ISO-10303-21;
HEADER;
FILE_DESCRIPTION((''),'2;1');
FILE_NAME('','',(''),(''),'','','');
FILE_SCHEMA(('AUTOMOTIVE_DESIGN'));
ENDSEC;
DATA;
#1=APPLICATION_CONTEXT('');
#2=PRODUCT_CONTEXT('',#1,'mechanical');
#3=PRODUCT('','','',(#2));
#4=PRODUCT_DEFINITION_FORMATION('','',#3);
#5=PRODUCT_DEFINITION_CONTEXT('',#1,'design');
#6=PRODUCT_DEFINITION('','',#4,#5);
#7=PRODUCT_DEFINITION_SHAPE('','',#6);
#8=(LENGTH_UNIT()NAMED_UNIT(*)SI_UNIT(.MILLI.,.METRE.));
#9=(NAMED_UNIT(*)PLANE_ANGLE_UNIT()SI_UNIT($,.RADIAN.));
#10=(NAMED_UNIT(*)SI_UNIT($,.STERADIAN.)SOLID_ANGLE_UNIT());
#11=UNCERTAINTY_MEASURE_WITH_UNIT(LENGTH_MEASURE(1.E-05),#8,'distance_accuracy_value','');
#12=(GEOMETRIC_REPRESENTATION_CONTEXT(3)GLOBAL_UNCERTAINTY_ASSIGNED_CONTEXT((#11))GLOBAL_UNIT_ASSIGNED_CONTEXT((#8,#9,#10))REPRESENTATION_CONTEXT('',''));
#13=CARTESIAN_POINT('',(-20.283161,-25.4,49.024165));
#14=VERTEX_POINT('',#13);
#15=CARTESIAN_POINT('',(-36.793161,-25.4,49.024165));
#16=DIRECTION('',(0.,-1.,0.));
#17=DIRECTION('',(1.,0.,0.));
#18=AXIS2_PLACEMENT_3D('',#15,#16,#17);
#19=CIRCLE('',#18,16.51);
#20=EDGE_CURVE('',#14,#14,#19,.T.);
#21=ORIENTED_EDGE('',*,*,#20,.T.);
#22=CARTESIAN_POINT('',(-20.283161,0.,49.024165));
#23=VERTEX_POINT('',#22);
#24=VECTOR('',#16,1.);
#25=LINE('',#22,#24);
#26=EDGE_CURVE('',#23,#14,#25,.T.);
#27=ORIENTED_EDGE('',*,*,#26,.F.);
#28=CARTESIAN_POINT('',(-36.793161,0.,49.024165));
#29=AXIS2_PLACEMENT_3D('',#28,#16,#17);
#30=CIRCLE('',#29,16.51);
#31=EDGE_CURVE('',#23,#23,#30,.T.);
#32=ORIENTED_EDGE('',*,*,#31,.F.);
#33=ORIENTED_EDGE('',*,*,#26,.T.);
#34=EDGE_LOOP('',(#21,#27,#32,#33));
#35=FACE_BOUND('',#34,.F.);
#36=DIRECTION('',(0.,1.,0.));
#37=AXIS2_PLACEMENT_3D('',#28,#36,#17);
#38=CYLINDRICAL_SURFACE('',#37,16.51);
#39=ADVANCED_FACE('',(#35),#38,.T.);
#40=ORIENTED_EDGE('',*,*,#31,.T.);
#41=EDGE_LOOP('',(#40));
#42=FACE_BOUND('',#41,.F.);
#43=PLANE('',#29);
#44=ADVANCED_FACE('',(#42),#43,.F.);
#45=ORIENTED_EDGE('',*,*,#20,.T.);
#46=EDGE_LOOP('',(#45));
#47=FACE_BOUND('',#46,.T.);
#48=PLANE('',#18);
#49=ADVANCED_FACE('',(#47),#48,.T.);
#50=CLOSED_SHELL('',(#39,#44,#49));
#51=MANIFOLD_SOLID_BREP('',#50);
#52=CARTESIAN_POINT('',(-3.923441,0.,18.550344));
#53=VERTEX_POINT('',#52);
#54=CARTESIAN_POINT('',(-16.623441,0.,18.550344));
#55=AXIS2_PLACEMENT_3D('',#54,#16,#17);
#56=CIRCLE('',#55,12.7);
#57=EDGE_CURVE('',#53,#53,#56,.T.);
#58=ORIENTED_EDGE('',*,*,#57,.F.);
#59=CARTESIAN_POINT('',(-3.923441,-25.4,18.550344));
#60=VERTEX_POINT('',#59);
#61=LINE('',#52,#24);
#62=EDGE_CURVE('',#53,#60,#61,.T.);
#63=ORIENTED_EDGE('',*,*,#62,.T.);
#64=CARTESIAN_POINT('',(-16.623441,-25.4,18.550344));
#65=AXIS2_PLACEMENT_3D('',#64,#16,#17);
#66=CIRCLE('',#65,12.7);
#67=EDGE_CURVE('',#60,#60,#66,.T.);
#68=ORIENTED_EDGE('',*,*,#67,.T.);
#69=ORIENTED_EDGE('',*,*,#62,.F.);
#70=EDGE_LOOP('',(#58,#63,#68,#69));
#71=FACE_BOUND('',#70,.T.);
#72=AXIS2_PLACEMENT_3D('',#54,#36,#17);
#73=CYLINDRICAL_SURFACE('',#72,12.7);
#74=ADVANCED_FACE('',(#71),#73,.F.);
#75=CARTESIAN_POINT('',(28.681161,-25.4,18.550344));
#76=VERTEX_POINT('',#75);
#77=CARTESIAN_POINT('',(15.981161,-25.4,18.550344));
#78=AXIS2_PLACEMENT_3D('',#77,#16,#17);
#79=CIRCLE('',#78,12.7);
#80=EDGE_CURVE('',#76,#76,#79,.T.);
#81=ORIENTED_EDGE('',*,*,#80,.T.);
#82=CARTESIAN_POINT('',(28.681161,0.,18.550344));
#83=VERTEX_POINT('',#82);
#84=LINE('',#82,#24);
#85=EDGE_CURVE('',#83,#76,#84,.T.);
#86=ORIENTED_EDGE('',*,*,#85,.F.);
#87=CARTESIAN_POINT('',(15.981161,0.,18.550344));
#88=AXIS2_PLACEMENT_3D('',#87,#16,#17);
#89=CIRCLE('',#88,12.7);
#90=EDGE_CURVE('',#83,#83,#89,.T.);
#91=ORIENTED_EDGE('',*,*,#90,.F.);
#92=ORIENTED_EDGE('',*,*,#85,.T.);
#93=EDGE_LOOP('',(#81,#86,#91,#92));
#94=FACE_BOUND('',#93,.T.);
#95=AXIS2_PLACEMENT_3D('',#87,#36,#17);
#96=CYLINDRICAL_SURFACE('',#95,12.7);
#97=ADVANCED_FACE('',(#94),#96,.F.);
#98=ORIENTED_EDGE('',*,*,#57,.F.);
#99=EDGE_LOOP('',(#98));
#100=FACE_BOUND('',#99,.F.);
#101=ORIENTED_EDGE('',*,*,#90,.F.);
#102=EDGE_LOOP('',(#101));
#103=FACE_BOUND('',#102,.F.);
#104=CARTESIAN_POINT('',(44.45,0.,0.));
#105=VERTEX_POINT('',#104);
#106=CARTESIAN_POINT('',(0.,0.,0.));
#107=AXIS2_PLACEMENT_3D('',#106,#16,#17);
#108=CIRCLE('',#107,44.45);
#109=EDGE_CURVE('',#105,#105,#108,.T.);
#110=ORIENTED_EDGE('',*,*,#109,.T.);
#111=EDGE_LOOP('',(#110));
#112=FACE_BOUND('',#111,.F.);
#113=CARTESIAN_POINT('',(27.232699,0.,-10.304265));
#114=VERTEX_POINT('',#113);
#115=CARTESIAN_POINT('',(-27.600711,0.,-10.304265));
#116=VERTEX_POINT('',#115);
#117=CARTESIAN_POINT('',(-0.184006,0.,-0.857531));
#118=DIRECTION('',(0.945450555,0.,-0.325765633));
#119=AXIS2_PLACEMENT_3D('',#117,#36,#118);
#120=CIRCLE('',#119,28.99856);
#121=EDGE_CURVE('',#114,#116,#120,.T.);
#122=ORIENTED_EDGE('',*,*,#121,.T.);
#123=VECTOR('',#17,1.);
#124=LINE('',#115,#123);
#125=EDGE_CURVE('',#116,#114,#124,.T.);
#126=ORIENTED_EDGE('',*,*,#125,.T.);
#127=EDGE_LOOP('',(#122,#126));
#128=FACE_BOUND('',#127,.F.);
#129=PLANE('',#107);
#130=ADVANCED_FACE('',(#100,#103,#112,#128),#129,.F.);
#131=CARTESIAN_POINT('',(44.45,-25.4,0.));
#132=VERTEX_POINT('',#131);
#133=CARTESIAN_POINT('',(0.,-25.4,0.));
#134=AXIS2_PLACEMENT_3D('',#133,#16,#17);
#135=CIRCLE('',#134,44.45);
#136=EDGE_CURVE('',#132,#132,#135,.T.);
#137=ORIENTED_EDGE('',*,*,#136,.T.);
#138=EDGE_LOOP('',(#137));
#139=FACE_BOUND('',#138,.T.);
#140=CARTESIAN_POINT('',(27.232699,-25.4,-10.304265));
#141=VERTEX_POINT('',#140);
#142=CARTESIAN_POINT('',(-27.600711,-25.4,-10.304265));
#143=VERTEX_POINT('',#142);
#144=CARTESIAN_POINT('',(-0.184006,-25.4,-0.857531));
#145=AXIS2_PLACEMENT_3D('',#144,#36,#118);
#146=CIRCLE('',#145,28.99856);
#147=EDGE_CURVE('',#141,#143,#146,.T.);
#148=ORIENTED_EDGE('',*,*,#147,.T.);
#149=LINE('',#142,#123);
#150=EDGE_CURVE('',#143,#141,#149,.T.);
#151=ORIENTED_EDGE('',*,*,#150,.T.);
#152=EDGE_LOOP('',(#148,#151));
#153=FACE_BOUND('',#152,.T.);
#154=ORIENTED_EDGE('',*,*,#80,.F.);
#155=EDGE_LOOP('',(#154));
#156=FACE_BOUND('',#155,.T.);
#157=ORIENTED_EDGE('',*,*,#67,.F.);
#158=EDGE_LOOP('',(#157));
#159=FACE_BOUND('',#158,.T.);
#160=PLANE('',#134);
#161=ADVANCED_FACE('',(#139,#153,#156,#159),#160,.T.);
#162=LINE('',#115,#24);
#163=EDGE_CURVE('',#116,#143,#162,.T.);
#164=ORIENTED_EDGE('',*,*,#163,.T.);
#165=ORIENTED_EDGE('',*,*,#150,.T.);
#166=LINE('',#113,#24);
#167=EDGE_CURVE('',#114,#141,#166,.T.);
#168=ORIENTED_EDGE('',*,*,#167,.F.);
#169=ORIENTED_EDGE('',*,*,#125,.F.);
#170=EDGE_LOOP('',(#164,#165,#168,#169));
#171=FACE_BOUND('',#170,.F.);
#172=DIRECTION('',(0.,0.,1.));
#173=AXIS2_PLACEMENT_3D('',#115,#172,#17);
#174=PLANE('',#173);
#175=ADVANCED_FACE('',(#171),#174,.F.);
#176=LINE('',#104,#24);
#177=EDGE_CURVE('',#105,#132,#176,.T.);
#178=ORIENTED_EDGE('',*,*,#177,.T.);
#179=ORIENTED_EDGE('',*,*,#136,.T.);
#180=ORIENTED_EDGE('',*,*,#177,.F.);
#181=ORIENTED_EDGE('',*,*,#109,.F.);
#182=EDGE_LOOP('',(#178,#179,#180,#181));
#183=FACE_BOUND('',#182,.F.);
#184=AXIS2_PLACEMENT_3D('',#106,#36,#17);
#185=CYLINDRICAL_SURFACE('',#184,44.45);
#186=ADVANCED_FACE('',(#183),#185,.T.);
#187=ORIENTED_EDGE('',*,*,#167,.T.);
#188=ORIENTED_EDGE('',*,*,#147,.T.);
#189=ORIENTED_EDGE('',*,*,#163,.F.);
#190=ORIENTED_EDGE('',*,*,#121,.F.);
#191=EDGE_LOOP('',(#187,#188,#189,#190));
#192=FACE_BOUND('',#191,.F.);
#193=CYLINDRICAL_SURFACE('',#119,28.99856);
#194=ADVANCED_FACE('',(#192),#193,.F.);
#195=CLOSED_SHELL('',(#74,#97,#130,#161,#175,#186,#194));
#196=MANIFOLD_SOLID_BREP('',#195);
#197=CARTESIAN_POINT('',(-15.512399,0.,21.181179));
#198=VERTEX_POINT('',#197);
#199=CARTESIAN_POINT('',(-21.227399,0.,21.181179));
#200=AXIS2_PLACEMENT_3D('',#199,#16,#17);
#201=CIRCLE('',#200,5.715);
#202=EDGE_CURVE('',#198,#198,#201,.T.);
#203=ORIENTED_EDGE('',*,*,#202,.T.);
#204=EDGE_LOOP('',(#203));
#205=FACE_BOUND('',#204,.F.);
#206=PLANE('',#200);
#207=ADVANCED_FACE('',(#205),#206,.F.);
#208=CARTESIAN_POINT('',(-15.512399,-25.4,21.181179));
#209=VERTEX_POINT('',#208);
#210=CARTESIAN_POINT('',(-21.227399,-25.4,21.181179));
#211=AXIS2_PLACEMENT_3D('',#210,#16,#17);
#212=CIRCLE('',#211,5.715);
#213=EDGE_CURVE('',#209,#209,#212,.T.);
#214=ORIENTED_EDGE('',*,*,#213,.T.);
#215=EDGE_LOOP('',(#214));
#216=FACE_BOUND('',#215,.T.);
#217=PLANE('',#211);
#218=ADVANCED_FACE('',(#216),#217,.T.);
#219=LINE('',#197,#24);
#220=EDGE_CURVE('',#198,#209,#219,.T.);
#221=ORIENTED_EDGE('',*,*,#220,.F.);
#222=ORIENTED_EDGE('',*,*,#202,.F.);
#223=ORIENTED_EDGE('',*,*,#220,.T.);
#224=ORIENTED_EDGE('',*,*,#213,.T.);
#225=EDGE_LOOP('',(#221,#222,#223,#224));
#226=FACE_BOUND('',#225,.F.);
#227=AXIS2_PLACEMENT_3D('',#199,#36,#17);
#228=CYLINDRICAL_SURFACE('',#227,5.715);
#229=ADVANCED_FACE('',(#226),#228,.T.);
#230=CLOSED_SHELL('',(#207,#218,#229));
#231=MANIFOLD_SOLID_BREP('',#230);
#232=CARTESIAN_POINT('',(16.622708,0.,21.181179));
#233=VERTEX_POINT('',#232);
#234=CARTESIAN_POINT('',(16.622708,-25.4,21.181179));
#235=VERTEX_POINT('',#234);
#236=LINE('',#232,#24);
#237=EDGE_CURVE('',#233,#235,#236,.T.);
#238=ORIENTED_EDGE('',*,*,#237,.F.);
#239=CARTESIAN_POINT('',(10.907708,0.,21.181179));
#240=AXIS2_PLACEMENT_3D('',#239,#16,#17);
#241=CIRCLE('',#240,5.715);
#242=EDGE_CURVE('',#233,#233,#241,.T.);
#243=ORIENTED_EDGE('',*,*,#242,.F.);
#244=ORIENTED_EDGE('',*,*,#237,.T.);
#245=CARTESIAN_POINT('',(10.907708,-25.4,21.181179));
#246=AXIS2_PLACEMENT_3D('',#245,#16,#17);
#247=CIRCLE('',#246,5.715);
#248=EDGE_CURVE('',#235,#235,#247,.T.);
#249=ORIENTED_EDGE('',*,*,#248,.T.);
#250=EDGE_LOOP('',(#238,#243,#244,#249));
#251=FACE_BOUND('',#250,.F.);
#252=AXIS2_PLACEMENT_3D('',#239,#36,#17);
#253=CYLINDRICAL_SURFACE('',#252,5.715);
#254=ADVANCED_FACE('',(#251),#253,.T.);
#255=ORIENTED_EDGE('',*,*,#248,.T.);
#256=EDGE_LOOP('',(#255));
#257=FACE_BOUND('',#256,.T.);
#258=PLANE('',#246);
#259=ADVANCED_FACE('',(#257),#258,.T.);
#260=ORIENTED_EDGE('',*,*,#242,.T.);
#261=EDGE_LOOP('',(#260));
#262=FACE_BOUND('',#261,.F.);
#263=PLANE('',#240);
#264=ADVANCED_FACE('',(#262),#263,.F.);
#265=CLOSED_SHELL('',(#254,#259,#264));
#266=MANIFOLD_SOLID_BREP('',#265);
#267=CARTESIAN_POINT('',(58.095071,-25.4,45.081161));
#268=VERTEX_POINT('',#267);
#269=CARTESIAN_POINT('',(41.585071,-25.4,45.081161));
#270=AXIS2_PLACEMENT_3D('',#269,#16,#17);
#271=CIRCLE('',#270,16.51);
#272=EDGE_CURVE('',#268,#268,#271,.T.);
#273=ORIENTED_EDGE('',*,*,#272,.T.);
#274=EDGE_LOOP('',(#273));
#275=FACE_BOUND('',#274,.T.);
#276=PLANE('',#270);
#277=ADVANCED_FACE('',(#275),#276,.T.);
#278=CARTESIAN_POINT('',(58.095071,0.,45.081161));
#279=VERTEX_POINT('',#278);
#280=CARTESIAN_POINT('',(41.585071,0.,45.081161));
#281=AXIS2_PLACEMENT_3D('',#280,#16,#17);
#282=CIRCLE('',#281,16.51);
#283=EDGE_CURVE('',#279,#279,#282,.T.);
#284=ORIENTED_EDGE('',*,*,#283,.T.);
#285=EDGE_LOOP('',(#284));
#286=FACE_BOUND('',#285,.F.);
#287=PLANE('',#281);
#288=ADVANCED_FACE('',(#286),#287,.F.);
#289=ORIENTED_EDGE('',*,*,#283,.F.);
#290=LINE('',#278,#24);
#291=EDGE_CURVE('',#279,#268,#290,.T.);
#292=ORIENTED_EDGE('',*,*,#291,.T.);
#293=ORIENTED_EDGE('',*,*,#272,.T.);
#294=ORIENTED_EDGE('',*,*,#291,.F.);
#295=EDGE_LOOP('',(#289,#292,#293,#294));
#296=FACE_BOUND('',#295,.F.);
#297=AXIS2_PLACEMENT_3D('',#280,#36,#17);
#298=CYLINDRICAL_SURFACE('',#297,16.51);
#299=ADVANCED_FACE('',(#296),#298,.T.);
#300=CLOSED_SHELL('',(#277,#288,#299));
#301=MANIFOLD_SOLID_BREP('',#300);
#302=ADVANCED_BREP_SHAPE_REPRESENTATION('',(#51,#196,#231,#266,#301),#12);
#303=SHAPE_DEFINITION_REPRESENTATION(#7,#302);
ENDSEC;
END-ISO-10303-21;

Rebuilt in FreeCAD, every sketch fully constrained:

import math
import FreeCAD as App
import Part
import Sketcher

V = App.Vector
Q = App.Units.Quantity

doc = App.newDocument("Part")
body = doc.addObject("PartDesign::Body", "Body")
body.AllowCompound = True

# Sketch on XZ plane
sketch1 = doc.addObject("Sketcher::SketchObject", "Sketch")
body.addObject(sketch1)
sketch1.AttachmentSupport = (doc.XZ_Plane, [""])
sketch1.MapMode = "FlatFace"
sketch1.addGeometry([
    Part.Circle(V(42, 45, 0), V(0, 0, 1), 17),  # 0
    Part.Circle(V(-37, 49, 0), V(0, 0, 1), 17),  # 1
    Part.Circle(V(0, 0, 0), V(0, 0, 1), 44),  # 2
    Part.LineSegment(V(-28, -10, 0), V(27, -10, 0)),  # 3
    Part.ArcOfCircle(Part.Circle(V(0, -1, 0), V(0, 0, 1), 29), math.radians(-161), math.radians(-19)),  # 4
    Part.Circle(V(-17, 19, 0), V(0, 0, 1), 13),  # 5
    Part.Circle(V(16, 19, 0), V(0, 0, 1), 13),  # 6
    Part.Circle(V(-21, 21, 0), V(0, 0, 1), 6),  # 7
    Part.Circle(V(11, 21, 0), V(0, 0, 1), 6),  # 8
], False)
sketch1.addConstraint([
    Sketcher.Constraint("Coincident", 3, 1, 4, 1),
    Sketcher.Constraint("Coincident", 4, 2, 3, 2),
    Sketcher.Constraint("Horizontal", 3),
    Sketcher.Constraint("Coincident", 2, 3, -1, 1),
    Sketcher.Constraint("Equal", 0, 1),
    Sketcher.Constraint("Equal", 5, 6),
    Sketcher.Constraint("Equal", 7, 8),
    Sketcher.Constraint("Horizontal", 5, 3, 6, 3),
    Sketcher.Constraint("Horizontal", 7, 3, 8, 3),
    Sketcher.Constraint("Diameter", 5, Q("1 in")),
    Sketcher.Constraint("Diameter", 0, Q("1.3 in")),
    Sketcher.Constraint("Diameter", 2, Q("3.5 in")),
    Sketcher.Constraint("Diameter", 7, Q("0.45 in")),
    Sketcher.Constraint("Radius", 4, 28.99856),
    Sketcher.Constraint("DistanceX", 3, 1, 3, 2, 54.83341),
    Sketcher.Constraint("DistanceX", 7, 3, -1, 1, 21.227399),
    Sketcher.Constraint("DistanceX", -1, 1, 4, 2, 27.232699),
    Sketcher.Constraint("DistanceX", -1, 1, 0, 3, 41.585071),
    Sketcher.Constraint("DistanceY", -1, 1, 0, 3, 45.081161),
    Sketcher.Constraint("DistanceX", 1, 3, -1, 1, 36.793161),
    Sketcher.Constraint("DistanceY", 4, 3, -1, 1, 0.857531),
    Sketcher.Constraint("DistanceX", 5, 3, -1, 1, 16.623441),
    Sketcher.Constraint("DistanceX", -1, 1, 6, 3, 15.981161),
    Sketcher.Constraint("DistanceY", -1, 1, 7, 3, 21.181179),
    Sketcher.Constraint("DistanceY", 5, 3, 1, 3, 30.473821),
    Sketcher.Constraint("DistanceX", 5, 3, 8, 3, 27.531149),
    Sketcher.Constraint("DistanceY", 3, 1, 5, 3, 28.854609),
])
pad1 = doc.addObject("PartDesign::Pad", "Pad")
body.addObject(pad1)
pad1.Profile = sketch1
pad1.Length = Q("1 in")

doc.recompute()
